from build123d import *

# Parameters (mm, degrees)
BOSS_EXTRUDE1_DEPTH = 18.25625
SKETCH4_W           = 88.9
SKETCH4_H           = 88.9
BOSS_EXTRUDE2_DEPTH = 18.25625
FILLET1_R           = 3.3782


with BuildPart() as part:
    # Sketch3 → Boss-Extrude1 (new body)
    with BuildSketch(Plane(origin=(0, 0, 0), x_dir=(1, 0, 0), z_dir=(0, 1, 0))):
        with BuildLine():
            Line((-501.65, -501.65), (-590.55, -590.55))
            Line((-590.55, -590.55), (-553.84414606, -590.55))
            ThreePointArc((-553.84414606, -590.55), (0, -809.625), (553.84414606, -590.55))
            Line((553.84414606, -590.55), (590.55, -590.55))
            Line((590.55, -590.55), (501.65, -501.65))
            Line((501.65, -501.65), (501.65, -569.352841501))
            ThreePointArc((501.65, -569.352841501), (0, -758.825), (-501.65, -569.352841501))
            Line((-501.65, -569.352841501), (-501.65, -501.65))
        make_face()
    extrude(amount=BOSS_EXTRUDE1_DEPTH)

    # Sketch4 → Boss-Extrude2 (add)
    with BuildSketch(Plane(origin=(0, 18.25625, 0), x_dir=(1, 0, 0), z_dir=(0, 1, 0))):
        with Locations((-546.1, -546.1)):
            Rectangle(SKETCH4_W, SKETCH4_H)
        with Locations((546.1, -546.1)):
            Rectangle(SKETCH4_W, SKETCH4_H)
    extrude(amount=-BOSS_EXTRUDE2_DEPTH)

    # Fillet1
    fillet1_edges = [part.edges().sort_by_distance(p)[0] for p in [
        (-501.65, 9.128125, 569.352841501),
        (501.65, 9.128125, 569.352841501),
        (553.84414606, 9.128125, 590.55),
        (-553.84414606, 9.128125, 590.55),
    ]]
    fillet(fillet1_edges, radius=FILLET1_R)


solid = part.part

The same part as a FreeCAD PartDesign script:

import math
import FreeCAD as App
import Part
import Sketcher

V = App.Vector
Q = App.Units.Quantity


def edges_at(feature, points):
    """Names of the edges that pass closest to the given points."""
    edges = feature.Shape.Edges
    near = lambda p: min(range(len(edges)), key=lambda i: edges[i].distToShape(Part.Vertex(*p))[0])
    return sorted({f"Edge{near(p) + 1}" for p in points})


def add_polygon(sketch, points):
    """Adds a closed chain of lines whose ends are joined by coincident constraints."""
    first, n = sketch.GeometryCount, len(points)
    for a, b in zip(points, points[1:] + points[:1]):
        sketch.addGeometry(Part.LineSegment(App.Vector(*a, 0), App.Vector(*b, 0)), False)
    for i in range(n):
        sketch.addConstraint(Sketcher.Constraint("Coincident", first + i, 2, first + (i + 1) % n, 1))

doc = App.newDocument("Part")
params = doc.addObject("Spreadsheet::Sheet", "Params")
for row, (alias, value) in enumerate([
    ("sketch1_radius", "31.875 in"),
    ("sketch1_radius2", "29.875 in"),
    ("pad1_length", "0.71875 in"),
    ("sketch2_width", "3.5 in"),
    ("pad2_length", "0.71875 in"),
    ("fillet_radius", "0.133 in"),
], start=1):
    params.set(f"A{row}", alias)
    params.set(f"B{row}", "=" + value)
    params.setAlias(f"B{row}", alias)

body = doc.addObject("PartDesign::Body", "Body")

sketch1 = doc.addObject("Sketcher::SketchObject", "Sketch")
body.addObject(sketch1)
sketch1.AttachmentSupport = (doc.XZ_Plane, [""])
sketch1.MapMode = "FlatFace"
sketch1.addGeometry(Part.LineSegment(V(-502, 502, 0), V(-591, 591, 0)), False)
sketch1.addGeometry(Part.LineSegment(V(-591, 591, 0), V(-554, 591, 0)), False)
sketch1.addGeometry(Part.ArcOfCircle(Part.Circle(V(0, 0, 0), V(0, 0, 1), 810), math.radians(47), math.radians(133)), False)
sketch1.addGeometry(Part.LineSegment(V(554, 591, 0), V(591, 591, 0)), False)
sketch1.addGeometry(Part.LineSegment(V(591, 591, 0), V(502, 502, 0)), False)
sketch1.addGeometry(Part.LineSegment(V(502, 502, 0), V(502, 569, 0)), False)
sketch1.addGeometry(Part.ArcOfCircle(Part.Circle(V(0, 0, 0), V(0, 0, 1), 759), math.radians(49), math.radians(131)), False)
sketch1.addGeometry(Part.LineSegment(V(-502, 569, 0), V(-502, 502, 0)), False)
sketch1.addConstraint(Sketcher.Constraint("Coincident", 0, 2, 1, 1))
sketch1.addConstraint(Sketcher.Constraint("Coincident", 1, 2, 2, 2))
sketch1.addConstraint(Sketcher.Constraint("Coincident", 2, 1, 3, 1))
sketch1.addConstraint(Sketcher.Constraint("Coincident", 3, 2, 4, 1))
sketch1.addConstraint(Sketcher.Constraint("Coincident", 4, 2, 5, 1))
sketch1.addConstraint(Sketcher.Constraint("Coincident", 5, 2, 6, 1))
sketch1.addConstraint(Sketcher.Constraint("Coincident", 6, 2, 7, 1))
sketch1.addConstraint(Sketcher.Constraint("Coincident", 7, 2, 0, 1))
sketch1.addConstraint(Sketcher.Constraint("Horizontal", 1))
sketch1.addConstraint(Sketcher.Constraint("Horizontal", 3))
sketch1.addConstraint(Sketcher.Constraint("Vertical", 5))
sketch1.addConstraint(Sketcher.Constraint("Vertical", 7))
sketch1.addConstraint(Sketcher.Constraint("Coincident", 2, 3, -1, 1))
sketch1.addConstraint(Sketcher.Constraint("Coincident", 6, 3, -1, 1))
sketch1.addConstraint(Sketcher.Constraint("Symmetric", 0, 2, 3, 2, -2))
sketch1.addConstraint(Sketcher.Constraint("Symmetric", 4, 2, 7, 2, -2))
sketch1.addConstraint(Sketcher.Constraint("Perpendicular", 0, 4))
sketch1.addConstraint(Sketcher.Constraint("Radius", 2, Q("31.875 in")))
sketch1.addConstraint(Sketcher.Constraint("Radius", 6, Q("29.875 in")))
sketch1.addConstraint(Sketcher.Constraint("DistanceX", 0, 2, 3, 2, Q("46.5 in")))
sketch1.addConstraint(Sketcher.Constraint("DistanceX", 4, 2, 3, 2, Q("3.5 in")))
sketch1.addConstraint(Sketcher.Constraint("DistanceY", -1, 1, 0, 2, Q("23.25 in")))
sketch1.setExpression("Constraints[17]", "Params.sketch1_radius")
sketch1.setExpression("Constraints[18]", "Params.sketch1_radius2")
pad1 = doc.addObject("PartDesign::Pad", "Pad")
body.addObject(pad1)
pad1.Profile = sketch1
pad1.setExpression("Length", "Params.pad1_length")
pad1.Reversed = True

sketch2 = doc.addObject("Sketcher::SketchObject", "Sketch001")
body.addObject(sketch2)
sketch2.AttachmentSupport = (doc.XZ_Plane, [""])
sketch2.MapMode = "FlatFace"
sketch2.AttachmentOffset = App.Placement(V(0, 0, -0.71875 * 25.4), App.Rotation())
add_polygon(sketch2, [(-591, 502), (-591, 591), (-502, 591), (-502, 502)])
add_polygon(sketch2, [(502, 502), (502, 591), (591, 591), (591, 502)])
sketch2.addConstraint(Sketcher.Constraint("Vertical", 0))
sketch2.addConstraint(Sketcher.Constraint("Horizontal", 1))
sketch2.addConstraint(Sketcher.Constraint("Vertical", 2))
sketch2.addConstraint(Sketcher.Constraint("Horizontal", 3))
sketch2.addConstraint(Sketcher.Constraint("Vertical", 4))
sketch2.addConstraint(Sketcher.Constraint("Horizontal", 5))
sketch2.addConstraint(Sketcher.Constraint("Vertical", 6))
sketch2.addConstraint(Sketcher.Constraint("Horizontal", 7))
sketch2.addConstraint(Sketcher.Constraint("Symmetric", 1, 2, 4, 2, -2))
sketch2.addConstraint(Sketcher.Constraint("Symmetric", 3, 2, 6, 2, -2))
sketch2.addConstraint(Sketcher.Constraint("Equal", 7, 0))
sketch2.addConstraint(Sketcher.Constraint("DistanceX", 1, 1, 1, 2, Q("3.5 in")))
sketch2.addConstraint(Sketcher.Constraint("DistanceX", 0, 2, 4, 2, Q("43 in")))
sketch2.addConstraint(Sketcher.Constraint("DistanceY", -1, 1, 0, 2, Q("23.25 in")))
sketch2.setExpression("Constraints[19]", "Params.sketch2_width")
pad2 = doc.addObject("PartDesign::Pad", "Pad001")
body.addObject(pad2)
pad2.Profile = sketch2
pad2.setExpression("Length", "Params.pad2_length")
doc.recompute()

fillet = doc.addObject("PartDesign::Fillet", "Fillet")
body.addObject(fillet)
fillet.Base = (pad2, edges_at(pad2, [
    (-501.65, 9.128, 569.353),
    (501.65, 9.128, 569.353),
    (553.844, 9.128, 590.55),
    (-553.844, 9.128, 590.55),
]))
fillet.setExpression("Radius", "Params.fillet_radius")

doc.recompute()
